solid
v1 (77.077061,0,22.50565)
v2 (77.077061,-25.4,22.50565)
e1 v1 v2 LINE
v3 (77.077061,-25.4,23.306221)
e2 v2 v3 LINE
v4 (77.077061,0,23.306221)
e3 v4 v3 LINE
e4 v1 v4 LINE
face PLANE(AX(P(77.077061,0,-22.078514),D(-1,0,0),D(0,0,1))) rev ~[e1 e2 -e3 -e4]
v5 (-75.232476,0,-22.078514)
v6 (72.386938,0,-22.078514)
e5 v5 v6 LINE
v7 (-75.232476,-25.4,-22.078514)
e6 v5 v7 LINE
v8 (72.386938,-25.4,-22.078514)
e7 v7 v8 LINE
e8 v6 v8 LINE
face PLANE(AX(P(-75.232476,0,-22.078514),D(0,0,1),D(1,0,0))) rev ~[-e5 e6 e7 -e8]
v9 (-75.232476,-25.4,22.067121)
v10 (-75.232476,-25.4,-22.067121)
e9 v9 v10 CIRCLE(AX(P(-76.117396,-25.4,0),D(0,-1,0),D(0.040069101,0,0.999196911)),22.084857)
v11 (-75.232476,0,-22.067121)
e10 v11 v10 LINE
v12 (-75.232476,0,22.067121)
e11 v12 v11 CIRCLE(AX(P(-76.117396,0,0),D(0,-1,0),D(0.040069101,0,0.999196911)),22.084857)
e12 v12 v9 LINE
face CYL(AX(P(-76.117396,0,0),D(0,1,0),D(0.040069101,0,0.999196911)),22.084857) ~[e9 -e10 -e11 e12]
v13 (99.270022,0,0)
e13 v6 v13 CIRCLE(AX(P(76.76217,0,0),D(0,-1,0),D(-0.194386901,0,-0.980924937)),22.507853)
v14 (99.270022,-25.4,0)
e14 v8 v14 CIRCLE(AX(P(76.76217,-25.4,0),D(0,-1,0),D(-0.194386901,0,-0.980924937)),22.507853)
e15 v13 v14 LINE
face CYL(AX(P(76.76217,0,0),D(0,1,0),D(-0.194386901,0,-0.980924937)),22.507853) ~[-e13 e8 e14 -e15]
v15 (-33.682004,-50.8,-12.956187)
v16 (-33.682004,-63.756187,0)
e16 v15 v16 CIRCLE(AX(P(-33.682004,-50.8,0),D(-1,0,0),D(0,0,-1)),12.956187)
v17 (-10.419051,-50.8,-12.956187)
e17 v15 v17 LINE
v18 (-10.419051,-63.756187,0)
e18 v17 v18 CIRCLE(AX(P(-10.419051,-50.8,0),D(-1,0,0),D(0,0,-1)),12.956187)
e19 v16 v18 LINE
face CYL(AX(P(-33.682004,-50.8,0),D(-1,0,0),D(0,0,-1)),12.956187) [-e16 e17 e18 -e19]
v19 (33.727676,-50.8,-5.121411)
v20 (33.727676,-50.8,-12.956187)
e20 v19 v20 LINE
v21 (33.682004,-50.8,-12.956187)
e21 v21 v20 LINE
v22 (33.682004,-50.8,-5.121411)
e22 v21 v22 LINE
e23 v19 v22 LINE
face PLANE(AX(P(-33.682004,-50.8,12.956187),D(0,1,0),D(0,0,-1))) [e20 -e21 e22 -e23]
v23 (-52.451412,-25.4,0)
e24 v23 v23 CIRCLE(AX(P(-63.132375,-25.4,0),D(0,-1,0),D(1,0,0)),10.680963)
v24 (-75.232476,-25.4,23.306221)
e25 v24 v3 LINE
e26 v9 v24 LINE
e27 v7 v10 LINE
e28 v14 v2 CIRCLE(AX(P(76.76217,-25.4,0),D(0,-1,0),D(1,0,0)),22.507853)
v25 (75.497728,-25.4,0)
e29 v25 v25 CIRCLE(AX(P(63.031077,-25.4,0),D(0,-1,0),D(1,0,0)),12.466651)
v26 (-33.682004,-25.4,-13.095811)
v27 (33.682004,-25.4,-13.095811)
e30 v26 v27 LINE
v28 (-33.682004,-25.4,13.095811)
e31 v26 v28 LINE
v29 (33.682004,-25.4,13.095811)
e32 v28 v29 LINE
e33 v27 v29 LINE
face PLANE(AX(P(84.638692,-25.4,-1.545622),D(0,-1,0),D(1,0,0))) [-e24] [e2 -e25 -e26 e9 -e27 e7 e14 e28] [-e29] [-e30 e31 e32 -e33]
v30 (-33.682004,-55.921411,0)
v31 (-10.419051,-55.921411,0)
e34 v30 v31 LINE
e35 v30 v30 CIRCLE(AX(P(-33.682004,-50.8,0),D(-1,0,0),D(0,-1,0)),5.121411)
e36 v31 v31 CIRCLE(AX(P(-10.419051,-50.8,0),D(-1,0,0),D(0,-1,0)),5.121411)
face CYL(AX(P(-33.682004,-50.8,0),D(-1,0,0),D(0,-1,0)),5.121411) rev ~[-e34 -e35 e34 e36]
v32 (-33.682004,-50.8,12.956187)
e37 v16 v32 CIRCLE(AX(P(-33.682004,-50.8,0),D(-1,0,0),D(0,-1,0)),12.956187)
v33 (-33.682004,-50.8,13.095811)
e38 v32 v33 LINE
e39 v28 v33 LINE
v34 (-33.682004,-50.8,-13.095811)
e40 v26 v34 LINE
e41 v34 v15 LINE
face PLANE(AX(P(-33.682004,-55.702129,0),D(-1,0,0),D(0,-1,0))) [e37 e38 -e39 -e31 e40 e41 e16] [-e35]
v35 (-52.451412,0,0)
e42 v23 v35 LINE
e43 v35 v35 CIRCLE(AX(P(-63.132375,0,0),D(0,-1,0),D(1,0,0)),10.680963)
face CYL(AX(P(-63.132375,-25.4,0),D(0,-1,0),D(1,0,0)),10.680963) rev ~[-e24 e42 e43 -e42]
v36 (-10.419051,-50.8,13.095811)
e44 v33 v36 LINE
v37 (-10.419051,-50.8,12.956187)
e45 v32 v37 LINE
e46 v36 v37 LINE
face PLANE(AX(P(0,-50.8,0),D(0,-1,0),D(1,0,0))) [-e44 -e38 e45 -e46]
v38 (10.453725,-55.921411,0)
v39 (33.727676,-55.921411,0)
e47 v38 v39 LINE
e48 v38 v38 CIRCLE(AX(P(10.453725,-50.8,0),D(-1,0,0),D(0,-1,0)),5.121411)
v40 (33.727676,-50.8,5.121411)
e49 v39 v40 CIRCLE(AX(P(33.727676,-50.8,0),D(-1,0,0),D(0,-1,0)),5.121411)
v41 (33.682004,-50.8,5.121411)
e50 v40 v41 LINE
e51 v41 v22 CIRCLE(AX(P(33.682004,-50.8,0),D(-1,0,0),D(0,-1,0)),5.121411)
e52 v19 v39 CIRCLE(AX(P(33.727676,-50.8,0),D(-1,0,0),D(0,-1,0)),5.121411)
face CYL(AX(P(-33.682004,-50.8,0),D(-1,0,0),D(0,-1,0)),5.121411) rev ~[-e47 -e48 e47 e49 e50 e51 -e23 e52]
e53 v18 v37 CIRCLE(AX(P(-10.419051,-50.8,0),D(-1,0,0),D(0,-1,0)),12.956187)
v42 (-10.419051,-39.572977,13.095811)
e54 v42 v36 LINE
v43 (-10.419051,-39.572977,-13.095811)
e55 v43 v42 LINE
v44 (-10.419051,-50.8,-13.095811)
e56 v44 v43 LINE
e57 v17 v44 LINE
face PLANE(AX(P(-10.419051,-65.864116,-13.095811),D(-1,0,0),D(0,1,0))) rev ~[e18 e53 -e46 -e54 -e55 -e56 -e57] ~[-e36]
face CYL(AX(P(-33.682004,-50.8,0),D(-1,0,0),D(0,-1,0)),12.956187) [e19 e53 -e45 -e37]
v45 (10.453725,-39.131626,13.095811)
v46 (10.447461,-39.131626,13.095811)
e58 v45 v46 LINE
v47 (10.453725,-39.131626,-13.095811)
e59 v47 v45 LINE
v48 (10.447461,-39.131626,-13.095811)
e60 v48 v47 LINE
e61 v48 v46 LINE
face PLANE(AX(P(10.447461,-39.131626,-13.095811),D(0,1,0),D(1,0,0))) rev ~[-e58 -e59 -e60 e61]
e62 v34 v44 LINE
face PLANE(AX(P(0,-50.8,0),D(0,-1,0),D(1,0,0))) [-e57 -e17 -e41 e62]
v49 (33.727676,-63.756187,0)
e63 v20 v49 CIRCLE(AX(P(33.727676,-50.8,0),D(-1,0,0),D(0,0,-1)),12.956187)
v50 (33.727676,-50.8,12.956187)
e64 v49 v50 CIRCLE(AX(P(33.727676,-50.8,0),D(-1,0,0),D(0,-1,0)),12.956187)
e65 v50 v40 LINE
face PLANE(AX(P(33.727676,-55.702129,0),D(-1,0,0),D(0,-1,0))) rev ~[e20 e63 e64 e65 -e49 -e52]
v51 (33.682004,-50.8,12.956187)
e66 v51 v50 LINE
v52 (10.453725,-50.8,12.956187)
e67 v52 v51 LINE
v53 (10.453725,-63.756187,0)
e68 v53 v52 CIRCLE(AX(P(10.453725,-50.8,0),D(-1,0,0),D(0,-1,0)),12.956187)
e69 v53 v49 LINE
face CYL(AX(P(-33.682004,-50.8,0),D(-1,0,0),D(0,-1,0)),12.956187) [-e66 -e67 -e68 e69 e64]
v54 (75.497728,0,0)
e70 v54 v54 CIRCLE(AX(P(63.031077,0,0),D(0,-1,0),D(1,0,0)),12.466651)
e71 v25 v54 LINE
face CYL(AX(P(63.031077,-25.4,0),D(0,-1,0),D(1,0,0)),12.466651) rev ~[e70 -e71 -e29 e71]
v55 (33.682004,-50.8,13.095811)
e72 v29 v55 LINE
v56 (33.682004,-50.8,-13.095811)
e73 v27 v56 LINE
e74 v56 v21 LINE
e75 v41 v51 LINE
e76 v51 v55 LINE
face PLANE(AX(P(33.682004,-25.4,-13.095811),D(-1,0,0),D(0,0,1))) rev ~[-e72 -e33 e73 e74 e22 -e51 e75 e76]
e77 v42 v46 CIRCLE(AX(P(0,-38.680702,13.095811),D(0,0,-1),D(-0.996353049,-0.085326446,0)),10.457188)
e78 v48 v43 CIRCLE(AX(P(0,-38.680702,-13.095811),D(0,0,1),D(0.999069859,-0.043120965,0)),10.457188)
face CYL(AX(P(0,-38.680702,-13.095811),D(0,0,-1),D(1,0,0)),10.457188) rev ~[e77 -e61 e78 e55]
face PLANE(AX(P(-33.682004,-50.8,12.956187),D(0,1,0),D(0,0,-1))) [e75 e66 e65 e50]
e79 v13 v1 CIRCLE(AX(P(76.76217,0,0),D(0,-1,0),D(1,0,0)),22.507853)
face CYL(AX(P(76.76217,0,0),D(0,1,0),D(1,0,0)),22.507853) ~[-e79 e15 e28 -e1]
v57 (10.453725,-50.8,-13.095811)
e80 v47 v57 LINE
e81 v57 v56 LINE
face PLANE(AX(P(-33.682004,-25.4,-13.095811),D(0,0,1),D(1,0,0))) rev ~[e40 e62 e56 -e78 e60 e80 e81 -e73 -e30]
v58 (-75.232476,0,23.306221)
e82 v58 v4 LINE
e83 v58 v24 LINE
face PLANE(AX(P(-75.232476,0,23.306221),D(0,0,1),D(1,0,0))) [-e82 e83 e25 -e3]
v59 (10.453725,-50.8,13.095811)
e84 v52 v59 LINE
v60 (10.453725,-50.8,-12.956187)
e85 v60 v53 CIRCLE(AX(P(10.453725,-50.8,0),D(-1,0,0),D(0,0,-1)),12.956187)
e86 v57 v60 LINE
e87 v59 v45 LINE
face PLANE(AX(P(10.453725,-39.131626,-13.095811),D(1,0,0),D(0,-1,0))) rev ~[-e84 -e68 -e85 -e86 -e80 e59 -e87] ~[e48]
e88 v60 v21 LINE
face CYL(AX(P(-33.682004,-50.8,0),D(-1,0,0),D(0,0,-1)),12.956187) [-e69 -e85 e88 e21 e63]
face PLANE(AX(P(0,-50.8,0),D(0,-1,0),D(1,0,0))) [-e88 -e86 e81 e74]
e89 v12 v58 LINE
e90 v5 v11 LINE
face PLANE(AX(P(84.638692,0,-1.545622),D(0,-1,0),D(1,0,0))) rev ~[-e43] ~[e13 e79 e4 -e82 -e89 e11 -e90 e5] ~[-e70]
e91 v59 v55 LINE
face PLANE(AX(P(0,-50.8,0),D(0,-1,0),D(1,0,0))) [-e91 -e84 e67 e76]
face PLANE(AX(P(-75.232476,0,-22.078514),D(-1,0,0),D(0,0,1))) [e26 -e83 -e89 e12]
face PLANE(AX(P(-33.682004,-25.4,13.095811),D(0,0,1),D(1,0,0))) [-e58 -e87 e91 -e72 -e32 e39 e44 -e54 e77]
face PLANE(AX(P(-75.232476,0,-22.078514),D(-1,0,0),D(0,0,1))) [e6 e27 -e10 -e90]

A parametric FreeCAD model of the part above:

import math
import FreeCAD as App
import Part
import Sketcher
Q = App.Units.Quantity

doc = App.newDocument("Part")
body = doc.addObject("PartDesign::Body", "Body")

sketch1 = body.newObject("Sketcher::SketchObject", "Sketch")
sketch1.AttachmentSupport = (doc.getObject("XZ_Plane"), [""])
sketch1.MapMode = "FlatFace"
sketch1.addGeometry(Part.LineSegment(App.Vector(-75, 23, 0), App.Vector(-75, -22, 0)), False)
sketch1.addGeometry(Part.LineSegment(App.Vector(-75, -22, 0), App.Vector(77, -22, 0)), False)
sketch1.addGeometry(Part.LineSegment(App.Vector(77, -22, 0), App.Vector(77, 23, 0)), False)
sketch1.addGeometry(Part.LineSegment(App.Vector(77, 23, 0), App.Vector(-75, 23, 0)), False)
sketch1.addConstraint(Sketcher.Constraint("Coincident", 0, 2, 1, 1))
sketch1.addConstraint(Sketcher.Constraint("Coincident", 1, 2, 2, 1))
sketch1.addConstraint(Sketcher.Constraint("Coincident", 2, 2, 3, 1))
sketch1.addConstraint(Sketcher.Constraint("Coincident", 3, 2, 0, 1))
sketch1.addConstraint(Sketcher.Constraint("Vertical", 0))
sketch1.addConstraint(Sketcher.Constraint("Horizontal", 1))
sketch1.addConstraint(Sketcher.Constraint("Vertical", 2))
sketch1.addConstraint(Sketcher.Constraint("Horizontal", 3))
sketch1.addConstraint(Sketcher.Constraint("DistanceX", 1, 1, 1, 2, 152.309537))
sketch1.addConstraint(Sketcher.Constraint("DistanceY", 0, 2, 0, 1, 45.384735))
sketch1.addConstraint(Sketcher.Constraint("DistanceX", -1, 1, 1, 2, 77.077061))
sketch1.addConstraint(Sketcher.Constraint("DistanceY", -1, 1, 2, 2, 23.306221))
pad1 = body.newObject("PartDesign::Pad", "Pad")
pad1.Profile = sketch1
pad1.Length = Q("1 in")

sketch2 = body.newObject("Sketcher::SketchObject", "Sketch001")
sketch2.AttachmentSupport = (doc.getObject("XZ_Plane"), [""])
sketch2.MapMode = "FlatFace"
sketch2.addGeometry(Part.LineSegment(App.Vector(-75.2, -22.1, 0), App.Vector(-75.2, 22.1, 0)), False)
sketch2.addGeometry(Part.ArcOfCircle(Part.Circle(App.Vector(-76.1, 0, 0), App.Vector(0, 0, 1), 22.1), math.radians(88), math.radians(272)), False)
sketch2.addGeometry(Part.ArcOfCircle(Part.Circle(App.Vector(76.8, 0, 0), App.Vector(0, 0, 1), 22.5), math.radians(-101), math.radians(0)), False)
sketch2.addGeometry(Part.ArcOfCircle(Part.Circle(App.Vector(76.8, 0, 0), App.Vector(0, 0, 1), 22.5), math.radians(0), math.radians(89)), False)
sketch2.addGeometry(Part.LineSegment(App.Vector(77.1, 22.5, 0), App.Vector(77.1, -22.1, 0)), False)
sketch2.addGeometry(Part.LineSegment(App.Vector(77.1, -22.1, 0), App.Vector(72.4, -22.1, 0)), False)
sketch2.addConstraint(Sketcher.Constraint("Coincident", 0, 1, 1, 2))
sketch2.addConstraint(Sketcher.Constraint("Coincident", 1, 1, 0, 2))
sketch2.addConstraint(Sketcher.Constraint("Tangent", 2, 2, 3, 1))
sketch2.addConstraint(Sketcher.Constraint("Coincident", 3, 2, 4, 1))
sketch2.addConstraint(Sketcher.Constraint("Coincident", 4, 2, 5, 1))
sketch2.addConstraint(Sketcher.Constraint("Coincident", 5, 2, 2, 1))
sketch2.addConstraint(Sketcher.Constraint("Vertical", 0))
sketch2.addConstraint(Sketcher.Constraint("Vertical", 4))
sketch2.addConstraint(Sketcher.Constraint("Horizontal", 5))
sketch2.addConstraint(Sketcher.Constraint("Equal", 2, 3))
sketch2.addConstraint(Sketcher.Constraint("PointOnObject", 1, 3, -1))
sketch2.addConstraint(Sketcher.Constraint("PointOnObject", 2, 3, -1))
sketch2.addConstraint(Sketcher.Constraint("PointOnObject", 2, 2, -1))
sketch2.addConstraint(Sketcher.Constraint("Radius", 1, 22.084857))
sketch2.addConstraint(Sketcher.Constraint("Radius", 2, 22.507853))
sketch2.addConstraint(Sketcher.Constraint("DistanceY", 0, 1, 0, 2, 44.134242))
sketch2.addConstraint(Sketcher.Constraint("DistanceX", 0, 1, 2, 2, 174.502498))
sketch2.addConstraint(Sketcher.Constraint("DistanceX", 5, 2, 5, 1, 4.690123))
sketch2.addConstraint(Sketcher.Constraint("DistanceY", 4, 2, 4, 1, 44.584164))
sketch2.addConstraint(Sketcher.Constraint("DistanceX", -1, 1, 2, 3, 76.76217))
pad2 = body.newObject("PartDesign::Pad", "Pad001")
pad2.Profile = sketch2
pad2.Length = Q("1 in")

sketch3 = body.newObject("Sketcher::SketchObject", "Sketch002")
sketch3.AttachmentSupport = (doc.getObject("XZ_Plane"), [""])
sketch3.MapMode = "FlatFace"
sketch3.AttachmentOffset = App.Placement(App.Vector(0, 0, 1 * 25.4), App.Rotation())
sketch3.addGeometry(Part.Circle(App.Vector(-63, 0, 0), App.Vector(0, 0, 1), 11), False)
sketch3.addConstraint(Sketcher.Constraint("PointOnObject", 0, 3, -1))
sketch3.addConstraint(Sketcher.Constraint("Diameter", 0, 21.361927))
sketch3.addConstraint(Sketcher.Constraint("DistanceX", 0, 3, -1, 1, 63.132375))
pocket1 = body.newObject("PartDesign::Pocket", "Pocket")
pocket1.Profile = sketch3
pocket1.Type = "ThroughAll"

sketch4 = body.newObject("Sketcher::SketchObject", "Sketch003")
sketch4.AttachmentSupport = (doc.getObject("XZ_Plane"), [""])
sketch4.MapMode = "FlatFace"
sketch4.AttachmentOffset = App.Placement(App.Vector(0, 0, 1 * 25.4), App.Rotation())
sketch4.addGeometry(Part.Circle(App.Vector(63, 0, 0), App.Vector(0, 0, 1), 12), False)
sketch4.addConstraint(Sketcher.Constraint("PointOnObject", 0, 3, -1))
sketch4.addConstraint(Sketcher.Constraint("Diameter", 0, 24.933301))
sketch4.addConstraint(Sketcher.Constraint("DistanceX", -1, 1, 0, 3, 63.031077))
pocket2 = body.newObject("PartDesign::Pocket", "Pocket001")
pocket2.Profile = sketch4
pocket2.Type = "ThroughAll"

sketch5 = body.newObject("Sketcher::SketchObject", "Sketch004")
sketch5.AttachmentSupport = (doc.getObject("XZ_Plane"), [""])
sketch5.MapMode = "FlatFace"
sketch5.AttachmentOffset = App.Placement(App.Vector(0, 0, 1 * 25.4), App.Rotation())
sketch5.addGeometry(Part.LineSegment(App.Vector(-34, 13, 0), App.Vector(-34, -13, 0)), False)
sketch5.addGeometry(Part.LineSegment(App.Vector(-34, -13, 0), App.Vector(34, -13, 0)), False)
sketch5.addGeometry(Part.LineSegment(App.Vector(34, -13, 0), App.Vector(34, 13, 0)), False)
sketch5.addGeometry(Part.LineSegment(App.Vector(34, 13, 0), App.Vector(-34, 13, 0)), False)
sketch5.addConstraint(Sketcher.Constraint("Coincident", 0, 2, 1, 1))
sketch5.addConstraint(Sketcher.Constraint("Coincident", 1, 2, 2, 1))
sketch5.addConstraint(Sketcher.Constraint("Coincident", 2, 2, 3, 1))
sketch5.addConstraint(Sketcher.Constraint("Coincident", 3, 2, 0, 1))
sketch5.addConstraint(Sketcher.Constraint("Vertical", 0))
sketch5.addConstraint(Sketcher.Constraint("Horizontal", 1))
sketch5.addConstraint(Sketcher.Constraint("Vertical", 2))
sketch5.addConstraint(Sketcher.Constraint("Horizontal", 3))
sketch5.addConstraint(Sketcher.Constraint("Symmetric", 0, 2, 2, 2, -1, 1))
sketch5.addConstraint(Sketcher.Constraint("DistanceX", 1, 1, 1, 2, 67.364007))
sketch5.addConstraint(Sketcher.Constraint("DistanceY", 0, 2, 0, 1, 26.191622))
pad3 = body.newObject("PartDesign::Pad", "Pad002")
pad3.Profile = sketch5
pad3.Length = Q("1 in")

sketch6 = body.newObject("Sketcher::SketchObject", "Sketch005")
sketch6.AttachmentSupport = (doc.getObject("YZ_Plane"), [""])
sketch6.MapMode = "FlatFace"
sketch6.AttachmentOffset = App.Placement(App.Vector(0, 0, -33.682004), App.Rotation())
sketch6.addGeometry(Part.ArcOfCircle(Part.Circle(App.Vector(-51, 0, 0), App.Vector(0, 0, 1), 13), math.radians(180), math.radians(270)), False)
sketch6.addGeometry(Part.ArcOfCircle(Part.Circle(App.Vector(-51, 0, 0), App.Vector(0, 0, 1), 13), math.radians(90), math.radians(180)), False)
sketch6.addGeometry(Part.LineSegment(App.Vector(-51, 13, 0), App.Vector(-51, -13, 0)), False)
sketch6.addConstraint(Sketcher.Constraint("Tangent", 0, 1, 1, 2))
sketch6.addConstraint(Sketcher.Constraint("Coincident", 1, 1, 2, 1))
sketch6.addConstraint(Sketcher.Constraint("Coincident", 2, 2, 0, 2))
sketch6.addConstraint(Sketcher.Constraint("Vertical", 2))
sketch6.addConstraint(Sketcher.Constraint("Equal", 0, 1))
sketch6.addConstraint(Sketcher.Constraint("PointOnObject", 0, 3, -1))
sketch6.addConstraint(Sketcher.Constraint("PointOnObject", 0, 1, -1))
sketch6.addConstraint(Sketcher.Constraint("Vertical", 0, 3, 1, 1))
sketch6.addConstraint(Sketcher.Constraint("DistanceX", 0, 3, -1, 1, Q("2 in")))
sketch6.addConstraint(Sketcher.Constraint("Radius", 0, 12.956187))
pad4 = body.newObject("PartDesign::Pad", "Pad003")
pad4.Profile = sketch6
pad4.Length = 67.409679

sketch7 = body.newObject("Sketcher::SketchObject", "Sketch006")
sketch7.AttachmentSupport = (doc.getObject("XY_Plane"), [""])
sketch7.MapMode = "FlatFace"
sketch7.AttachmentOffset = App.Placement(App.Vector(0, 0, -13.095811), App.Rotation())
sketch7.addGeometry(Part.LineSegment(App.Vector(10.447, -39.132, 0), App.Vector(10.454, -39.132, 0)), False)
sketch7.addGeometry(Part.LineSegment(App.Vector(10.454, -39.132, 0), App.Vector(10.454, -65.864, 0)), False)
sketch7.addGeometry(Part.LineSegment(App.Vector(10.454, -65.864, 0), App.Vector(-10.419, -65.864, 0)), False)
sketch7.addGeometry(Part.LineSegment(App.Vector(-10.419, -65.864, 0), App.Vector(-10.419, -39.573, 0)), False)
sketch7.addGeometry(Part.ArcOfCircle(Part.Circle(App.Vector(0, -38.681, 0), App.Vector(0, 0, 1), 10.457), math.radians(-2), math.radians(185)), False)
sketch7.addConstraint(Sketcher.Constraint("Coincident", 0, 2, 1, 1))
sketch7.addConstraint(Sketcher.Constraint("Coincident", 1, 2, 2, 1))
sketch7.addConstraint(Sketcher.Constraint("Coincident", 2, 2, 3, 1))
sketch7.addConstraint(Sketcher.Constraint("Coincident", 3, 2, 4, 2))
sketch7.addConstraint(Sketcher.Constraint("Coincident", 4, 1, 0, 1))
sketch7.addConstraint(Sketcher.Constraint("Horizontal", 0))
sketch7.addConstraint(Sketcher.Constraint("Vertical", 1))
sketch7.addConstraint(Sketcher.Constraint("Horizontal", 2))
sketch7.addConstraint(Sketcher.Constraint("Vertical", 3))
sketch7.addConstraint(Sketcher.Constraint("PointOnObject", 4, 3, -2))
sketch7.addConstraint(Sketcher.Constraint("Radius", 4, 10.457188))
sketch7.addConstraint(Sketcher.Constraint("DistanceY", 1, 2, 1, 1, 26.732489))
sketch7.addConstraint(Sketcher.Constraint("DistanceY", 3, 1, 3, 2, 26.291139))
sketch7.addConstraint(Sketcher.Constraint("DistanceX", 0, 1, 0, 2, 0.006264))
sketch7.addConstraint(Sketcher.Constraint("DistanceX", 2, 2, 2, 1, 20.872776))
sketch7.addConstraint(Sketcher.Constraint("DistanceY", 4, 3, -1, 1, 38.680702))
pocket3 = body.newObject("PartDesign::Pocket", "Pocket002")
pocket3.Profile = sketch7
pocket3.Type = "ThroughAll"
pocket3.Reversed = True

sketch8 = body.newObject("Sketcher::SketchObject", "Sketch007")
sketch8.AttachmentSupport = (doc.getObject("YZ_Plane"), [""])
sketch8.MapMode = "FlatFace"
sketch8.AttachmentOffset = App.Placement(App.Vector(0, 0, -33.682004), App.Rotation())
sketch8.addGeometry(Part.Circle(App.Vector(-51, 0, 0), App.Vector(0, 0, 1), 5), False)
sketch8.addConstraint(Sketcher.Constraint("PointOnObject", 0, 3, -1))
sketch8.addConstraint(Sketcher.Constraint("DistanceX", 0, 3, -1, 1, Q("2 in")))
sketch8.addConstraint(Sketcher.Constraint("Diameter", 0, 10.242821))
pocket4 = body.newObject("PartDesign::Pocket", "Pocket003")
pocket4.Profile = sketch8
pocket4.Type = "ThroughAll"
pocket4.Reversed = True

doc.recompute()
